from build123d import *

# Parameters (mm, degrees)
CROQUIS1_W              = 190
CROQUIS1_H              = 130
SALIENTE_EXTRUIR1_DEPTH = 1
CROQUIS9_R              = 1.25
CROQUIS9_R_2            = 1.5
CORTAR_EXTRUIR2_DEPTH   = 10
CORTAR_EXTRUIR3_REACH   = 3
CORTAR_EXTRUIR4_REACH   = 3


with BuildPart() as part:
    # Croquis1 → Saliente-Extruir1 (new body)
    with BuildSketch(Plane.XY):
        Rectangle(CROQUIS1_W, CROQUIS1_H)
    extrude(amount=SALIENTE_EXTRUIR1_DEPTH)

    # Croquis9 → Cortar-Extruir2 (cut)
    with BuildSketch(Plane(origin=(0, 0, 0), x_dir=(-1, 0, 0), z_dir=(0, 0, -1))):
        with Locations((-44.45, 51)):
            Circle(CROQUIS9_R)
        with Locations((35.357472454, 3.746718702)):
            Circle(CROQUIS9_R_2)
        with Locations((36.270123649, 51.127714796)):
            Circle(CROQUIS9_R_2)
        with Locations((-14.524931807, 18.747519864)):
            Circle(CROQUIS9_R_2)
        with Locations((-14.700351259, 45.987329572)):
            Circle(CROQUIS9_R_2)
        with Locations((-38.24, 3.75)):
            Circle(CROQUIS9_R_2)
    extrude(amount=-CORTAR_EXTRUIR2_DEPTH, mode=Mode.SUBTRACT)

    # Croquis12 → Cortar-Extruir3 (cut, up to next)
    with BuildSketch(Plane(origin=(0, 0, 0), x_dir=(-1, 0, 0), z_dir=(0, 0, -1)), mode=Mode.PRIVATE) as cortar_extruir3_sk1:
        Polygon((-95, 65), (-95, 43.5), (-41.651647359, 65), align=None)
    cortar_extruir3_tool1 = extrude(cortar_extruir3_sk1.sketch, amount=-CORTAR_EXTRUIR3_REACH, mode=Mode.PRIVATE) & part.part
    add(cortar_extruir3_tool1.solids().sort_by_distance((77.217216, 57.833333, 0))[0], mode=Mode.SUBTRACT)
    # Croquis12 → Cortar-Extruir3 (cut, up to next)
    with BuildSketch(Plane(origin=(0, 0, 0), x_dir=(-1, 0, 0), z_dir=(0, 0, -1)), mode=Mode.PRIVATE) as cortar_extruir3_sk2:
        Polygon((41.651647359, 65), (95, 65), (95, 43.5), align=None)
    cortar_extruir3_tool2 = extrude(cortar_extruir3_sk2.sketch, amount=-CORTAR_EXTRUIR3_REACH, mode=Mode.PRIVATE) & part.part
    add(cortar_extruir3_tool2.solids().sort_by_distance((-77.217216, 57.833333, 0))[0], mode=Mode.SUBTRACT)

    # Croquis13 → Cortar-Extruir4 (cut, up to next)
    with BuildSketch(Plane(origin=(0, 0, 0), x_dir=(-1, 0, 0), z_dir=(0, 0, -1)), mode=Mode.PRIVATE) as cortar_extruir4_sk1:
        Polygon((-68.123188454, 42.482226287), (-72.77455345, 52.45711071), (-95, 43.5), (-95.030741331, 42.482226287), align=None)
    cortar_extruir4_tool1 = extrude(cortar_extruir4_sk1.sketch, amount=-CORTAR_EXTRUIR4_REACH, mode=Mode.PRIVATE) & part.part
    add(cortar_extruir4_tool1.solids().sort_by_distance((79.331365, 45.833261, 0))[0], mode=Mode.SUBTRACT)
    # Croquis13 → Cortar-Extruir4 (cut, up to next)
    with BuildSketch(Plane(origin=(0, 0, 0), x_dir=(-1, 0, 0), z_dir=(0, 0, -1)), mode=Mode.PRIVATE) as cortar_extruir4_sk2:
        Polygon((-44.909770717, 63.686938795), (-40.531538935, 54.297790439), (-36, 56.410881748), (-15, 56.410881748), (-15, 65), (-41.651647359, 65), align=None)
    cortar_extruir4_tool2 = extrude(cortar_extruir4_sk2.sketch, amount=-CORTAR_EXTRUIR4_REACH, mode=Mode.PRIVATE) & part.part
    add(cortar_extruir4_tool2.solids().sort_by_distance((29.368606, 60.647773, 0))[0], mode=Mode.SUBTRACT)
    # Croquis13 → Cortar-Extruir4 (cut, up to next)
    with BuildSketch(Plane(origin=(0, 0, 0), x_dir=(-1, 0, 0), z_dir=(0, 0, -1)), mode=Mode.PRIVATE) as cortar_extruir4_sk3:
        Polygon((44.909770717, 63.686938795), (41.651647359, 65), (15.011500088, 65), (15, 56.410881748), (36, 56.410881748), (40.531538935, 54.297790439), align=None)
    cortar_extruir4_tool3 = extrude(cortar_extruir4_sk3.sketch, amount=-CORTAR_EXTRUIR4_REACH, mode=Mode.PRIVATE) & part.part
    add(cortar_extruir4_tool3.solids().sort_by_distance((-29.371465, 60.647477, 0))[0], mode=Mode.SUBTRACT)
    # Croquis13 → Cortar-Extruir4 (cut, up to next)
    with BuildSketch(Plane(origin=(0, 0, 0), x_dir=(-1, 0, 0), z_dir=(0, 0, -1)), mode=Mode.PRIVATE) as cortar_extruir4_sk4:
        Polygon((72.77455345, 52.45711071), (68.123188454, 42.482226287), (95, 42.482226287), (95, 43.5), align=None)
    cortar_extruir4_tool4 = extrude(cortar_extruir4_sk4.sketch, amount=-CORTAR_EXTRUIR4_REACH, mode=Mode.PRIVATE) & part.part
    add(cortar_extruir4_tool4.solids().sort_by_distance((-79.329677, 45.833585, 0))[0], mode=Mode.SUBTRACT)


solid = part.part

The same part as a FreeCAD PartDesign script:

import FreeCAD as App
import Part
import Sketcher
from FreeCAD import Vector
Q = App.Units.Quantity

doc = App.newDocument("Part")
body = doc.addObject("PartDesign::Body", "Body")

sketch1 = doc.addObject("Sketcher::SketchObject", "Sketch")
body.addObject(sketch1)
sketch1.AttachmentSupport = (doc.XY_Plane, [""])
sketch1.MapMode = "FlatFace"
sketch1.addGeometry(Part.LineSegment(Vector(-95, 65, 0), Vector(-95, -65, 0)), False)
sketch1.addGeometry(Part.LineSegment(Vector(-95, -65, 0), Vector(95, -65, 0)), False)
sketch1.addGeometry(Part.LineSegment(Vector(95, -65, 0), Vector(95, 65, 0)), False)
sketch1.addGeometry(Part.LineSegment(Vector(95, 65, 0), Vector(-95, 65, 0)), False)
sketch1.addConstraint(Sketcher.Constraint("Coincident", 0, 2, 1, 1))
sketch1.addConstraint(Sketcher.Constraint("Coincident", 1, 2, 2, 1))
sketch1.addConstraint(Sketcher.Constraint("Coincident", 2, 2, 3, 1))
sketch1.addConstraint(Sketcher.Constraint("Coincident", 3, 2, 0, 1))
sketch1.addConstraint(Sketcher.Constraint("Vertical", 0))
sketch1.addConstraint(Sketcher.Constraint("Horizontal", 1))
sketch1.addConstraint(Sketcher.Constraint("Vertical", 2))
sketch1.addConstraint(Sketcher.Constraint("Horizontal", 3))
sketch1.addConstraint(Sketcher.Constraint("Symmetric", 0, 2, 2, 2, -1, 1))
sketch1.addConstraint(Sketcher.Constraint("DistanceX", 1, 1, 1, 2, Q("190 mm")))
sketch1.addConstraint(Sketcher.Constraint("DistanceY", 0, 2, 0, 1, Q("130 mm")))
pad1 = doc.addObject("PartDesign::Pad", "Pad")
body.addObject(pad1)
pad1.Profile = sketch1
pad1.Length = 1

sketch2 = doc.addObject("Sketcher::SketchObject", "Sketch001")
body.addObject(sketch2)
sketch2.AttachmentSupport = (doc.XY_Plane, [""])
sketch2.MapMode = "FlatFace"
sketch2.addGeometry(Part.Circle(Vector(44.45, 51, 0), Vector(0, 0, 1), 1.25), False)
sketch2.addGeometry(Part.Circle(Vector(-35.357472, 3.746719, 0), Vector(0, 0, 1), 1.5), False)
sketch2.addGeometry(Part.Circle(Vector(-36.270124, 51.127715, 0), Vector(0, 0, 1), 1.5), False)
sketch2.addGeometry(Part.Circle(Vector(14.524932, 18.74752, 0), Vector(0, 0, 1), 1.5), False)
sketch2.addGeometry(Part.Circle(Vector(14.700351, 45.98733, 0), Vector(0, 0, 1), 1.5), False)
sketch2.addGeometry(Part.Circle(Vector(38.24, 3.75, 0), Vector(0, 0, 1), 1.5), False)
sketch2.addConstraint(Sketcher.Constraint("Equal", 1, 2))
sketch2.addConstraint(Sketcher.Constraint("Equal", 2, 3))
sketch2.addConstraint(Sketcher.Constraint("Equal", 3, 4))
sketch2.addConstraint(Sketcher.Constraint("Equal", 4, 5))
sketch2.addConstraint(Sketcher.Constraint("Diameter", 1, Q("3 mm")))
sketch2.addConstraint(Sketcher.Constraint("Diameter", 0, Q("2.5 mm")))
sketch2.addConstraint(Sketcher.Constraint("DistanceY", -1, 1, 0, 3, Q("51 mm")))
sketch2.addConstraint(Sketcher.Constraint("DistanceX", -1, 1, 0, 3, Q("44.45 mm")))
sketch2.addConstraint(Sketcher.Constraint("DistanceX", -1, 1, 5, 3, Q("38.24 mm")))
sketch2.addConstraint(Sketcher.Constraint("DistanceY", -1, 1, 5, 3, Q("3.75 mm")))
sketch2.addConstraint(Sketcher.Constraint("DistanceY", 1, 3, 3, 3, Q("15.000801 mm")))
sketch2.addConstraint(Sketcher.Constraint("DistanceY", -1, 1, 1, 3, Q("3.746719 mm")))
sketch2.addConstraint(Sketcher.Constraint("DistanceX", -1, 1, 3, 3, Q("14.524932 mm")))
sketch2.addConstraint(Sketcher.Constraint("DistanceX", -1, 1, 4, 3, Q("14.700351 mm")))
sketch2.addConstraint(Sketcher.Constraint("DistanceY", -1, 1, 4, 3, Q("45.98733 mm")))
sketch2.addConstraint(Sketcher.Constraint("DistanceX", 2, 3, 1, 3, Q("0.912651 mm")))
sketch2.addConstraint(Sketcher.Constraint("DistanceX", 1, 3, -1, 1, Q("35.357472 mm")))
sketch2.addConstraint(Sketcher.Constraint("DistanceY", -1, 1, 2, 3, Q("51.127715 mm")))
pocket1 = doc.addObject("PartDesign::Pocket", "Pocket")
body.addObject(pocket1)
pocket1.Profile = sketch2
pocket1.Length = 10
pocket1.Reversed = True

sketch3 = doc.addObject("Sketcher::SketchObject", "Sketch002")
body.addObject(sketch3)
sketch3.AttachmentSupport = (doc.XY_Plane, [""])
sketch3.MapMode = "FlatFace"
sketch3.addGeometry(Part.LineSegment(Vector(95, 65, 0), Vector(95, 43.5, 0)), False)
sketch3.addGeometry(Part.LineSegment(Vector(95, 43.5, 0), Vector(41.651647, 65, 0)), False)
sketch3.addGeometry(Part.LineSegment(Vector(41.651647, 65, 0), Vector(95, 65, 0)), False)
sketch3.addConstraint(Sketcher.Constraint("Coincident", 0, 2, 1, 1))
sketch3.addConstraint(Sketcher.Constraint("Coincident", 1, 2, 2, 1))
sketch3.addConstraint(Sketcher.Constraint("Coincident", 2, 2, 0, 1))
sketch3.addConstraint(Sketcher.Constraint("Vertical", 0))
sketch3.addConstraint(Sketcher.Constraint("Horizontal", 2))
sketch3.addConstraint(Sketcher.Constraint("DistanceY", 0, 2, 0, 1, Q("21.5 mm")))
sketch3.addConstraint(Sketcher.Constraint("DistanceX", -1, 1, 0, 2, Q("95 mm")))
sketch3.addConstraint(Sketcher.Constraint("DistanceY", -1, 1, 1, 2, Q("65 mm")))
sketch3.addConstraint(Sketcher.Constraint("Angle", 1, Q("158.049998 deg")))
pocket2 = doc.addObject("PartDesign::Pocket", "Pocket001")
body.addObject(pocket2)
pocket2.Profile = sketch3
pocket2.Type = "UpToFirst"
pocket2.Reversed = True

sketch4 = doc.addObject("Sketcher::SketchObject", "Sketch003")
body.addObject(sketch4)
sketch4.AttachmentSupport = (doc.XY_Plane, [""])
sketch4.MapMode = "FlatFace"
sketch4.addGeometry(Part.LineSegment(Vector(-95, 65, 0), Vector(-41.651647, 65, 0)), False)
sketch4.addGeometry(Part.LineSegment(Vector(-41.651647, 65, 0), Vector(-95, 43.5, 0)), False)
sketch4.addGeometry(Part.LineSegment(Vector(-95, 43.5, 0), Vector(-95, 65, 0)), False)
sketch4.addConstraint(Sketcher.Constraint("Coincident", 0, 2, 1, 1))
sketch4.addConstraint(Sketcher.Constraint("Coincident", 1, 2, 2, 1))
sketch4.addConstraint(Sketcher.Constraint("Coincident", 2, 2, 0, 1))
sketch4.addConstraint(Sketcher.Constraint("Horizontal", 0))
sketch4.addConstraint(Sketcher.Constraint("Vertical", 2))
sketch4.addConstraint(Sketcher.Constraint("DistanceY", 2, 1, 2, 2, Q("21.5 mm")))
sketch4.addConstraint(Sketcher.Constraint("DistanceY", -1, 1, 0, 2, Q("65 mm")))
sketch4.addConstraint(Sketcher.Constraint("DistanceX", 1, 2, -1, 1, Q("95 mm")))
sketch4.addConstraint(Sketcher.Constraint("Angle", 1, Q("-158.049998 deg")))
pocket3 = doc.addObject("PartDesign::Pocket", "Pocket002")
body.addObject(pocket3)
pocket3.Profile = sketch4
pocket3.Type = "UpToFirst"
pocket3.Reversed = True

sketch5 = doc.addObject("Sketcher::SketchObject", "Sketch004")
body.addObject(sketch5)
sketch5.AttachmentSupport = (doc.XY_Plane, [""])
sketch5.MapMode = "FlatFace"
sketch5.addGeometry(Part.LineSegment(Vector(68.123188, 42.482226, 0), Vector(72.774553, 52.457111, 0)), False)
sketch5.addGeometry(Part.LineSegment(Vector(72.774553, 52.457111, 0), Vector(95, 43.5, 0)), False)
sketch5.addGeometry(Part.LineSegment(Vector(95, 43.5, 0), Vector(95.030741, 42.482226, 0)), False)
sketch5.addGeometry(Part.LineSegment(Vector(95.030741, 42.482226, 0), Vector(68.123188, 42.482226, 0)), False)
sketch5.addConstraint(Sketcher.Constraint("Coincident", 0, 2, 1, 1))
sketch5.addConstraint(Sketcher.Constraint("Coincident", 1, 2, 2, 1))
sketch5.addConstraint(Sketcher.Constraint("Coincident", 2, 2, 3, 1))
sketch5.addConstraint(Sketcher.Constraint("Coincident", 3, 2, 0, 1))
sketch5.addConstraint(Sketcher.Constraint("Horizontal", 3))
sketch5.addConstraint(Sketcher.Constraint("Angle", 0, Q("65 deg")))
sketch5.addConstraint(Sketcher.Constraint("DistanceX", -1, 1, 1, 2, Q("95 mm")))
sketch5.addConstraint(Sketcher.Constraint("DistanceY", -1, 1, 1, 2, Q("43.5 mm")))
sketch5.addConstraint(Sketcher.Constraint("Angle", 1, Q("-21.950002 deg")))
sketch5.addConstraint(Sketcher.Constraint("DistanceX", 3, 2, 3, 1, Q("26.907553 mm")))
sketch5.addConstraint(Sketcher.Constraint("DistanceY", -1, 1, 0, 2, Q("52.457111 mm")))
sketch5.addConstraint(Sketcher.Constraint("DistanceX", -1, 1, 2, 2, Q("95.030741 mm")))
pocket4 = doc.addObject("PartDesign::Pocket", "Pocket003")
body.addObject(pocket4)
pocket4.Profile = sketch5
pocket4.Type = "UpToFirst"
pocket4.Reversed = True

sketch6 = doc.addObject("Sketcher::SketchObject", "Sketch005")
body.addObject(sketch6)
sketch6.AttachmentSupport = (doc.XY_Plane, [""])
sketch6.MapMode = "FlatFace"
sketch6.addGeometry(Part.LineSegment(Vector(44.909771, 63.686939, 0), Vector(40.531539, 54.29779, 0)), False)
sketch6.addGeometry(Part.LineSegment(Vector(40.531539, 54.29779, 0), Vector(36, 56.410882, 0)), False)
sketch6.addGeometry(Part.LineSegment(Vector(36, 56.410882, 0), Vector(15, 56.410882, 0)), False)
sketch6.addGeometry(Part.LineSegment(Vector(15, 56.410882, 0), Vector(15, 65, 0)), False)
sketch6.addGeometry(Part.LineSegment(Vector(15, 65, 0), Vector(41.651647, 65, 0)), False)
sketch6.addGeometry(Part.LineSegment(Vector(41.651647, 65, 0), Vector(44.909771, 63.686939, 0)), False)
sketch6.addConstraint(Sketcher.Constraint("Coincident", 0, 2, 1, 1))
sketch6.addConstraint(Sketcher.Constraint("Coincident", 1, 2, 2, 1))
sketch6.addConstraint(Sketcher.Constraint("Coincident", 2, 2, 3, 1))
sketch6.addConstraint(Sketcher.Constraint("Coincident", 3, 2, 4, 1))
sketch6.addConstraint(Sketcher.Constraint("Coincident", 4, 2, 5, 1))
sketch6.addConstraint(Sketcher.Constraint("Coincident", 5, 2, 0, 1))
sketch6.addConstraint(Sketcher.Constraint("Horizontal", 2))
sketch6.addConstraint(Sketcher.Constraint("Vertical", 3))
sketch6.addConstraint(Sketcher.Constraint("Horizontal", 4))
sketch6.addConstraint(Sketcher.Constraint("Perpendicular", 0, 1))
sketch6.addConstraint(Sketcher.Constraint("DistanceX", 2, 2, 2, 1, Q("21 mm")))
sketch6.addConstraint(Sketcher.Constraint("Angle", 0, Q("-115 deg")))
sketch6.addConstraint(Sketcher.Constraint("Distance", 1, Q("5 mm")))
sketch6.addConstraint(Sketcher.Constraint("DistanceX", -1, 1, 1, 2, Q("36 mm")))
sketch6.addConstraint(Sketcher.Constraint("DistanceY", -1, 1, 3, 2, Q("65 mm")))
sketch6.addConstraint(Sketcher.Constraint("Angle", 5, Q("-21.950002 deg")))
sketch6.addConstraint(Sketcher.Constraint("DistanceY", 3, 1, 3, 2, Q("8.589118 mm")))
sketch6.addConstraint(Sketcher.Constraint("Distance", 0, Q("10.359779 mm")))
pocket5 = doc.addObject("PartDesign::Pocket", "Pocket004")
body.addObject(pocket5)
pocket5.Profile = sketch6
pocket5.Type = "UpToFirst"
pocket5.Reversed = True

sketch7 = doc.addObject("Sketcher::SketchObject", "Sketch006")
body.addObject(sketch7)
sketch7.AttachmentSupport = (doc.XY_Plane, [""])
sketch7.MapMode = "FlatFace"
sketch7.addGeometry(Part.LineSegment(Vector(-44.909771, 63.686939, 0), Vector(-41.651647, 65, 0)), False)
sketch7.addGeometry(Part.LineSegment(Vector(-41.651647, 65, 0), Vector(-15.0115, 65, 0)), False)
sketch7.addGeometry(Part.LineSegment(Vector(-15.0115, 65, 0), Vector(-15, 56.410882, 0)), False)
sketch7.addGeometry(Part.LineSegment(Vector(-15, 56.410882, 0), Vector(-36, 56.410882, 0)), False)
sketch7.addGeometry(Part.LineSegment(Vector(-36, 56.410882, 0), Vector(-40.531539, 54.29779, 0)), False)
sketch7.addGeometry(Part.LineSegment(Vector(-40.531539, 54.29779, 0), Vector(-44.909771, 63.686939, 0)), False)
sketch7.addConstraint(Sketcher.Constraint("Coincident", 0, 2, 1, 1))
sketch7.addConstraint(Sketcher.Constraint("Coincident", 1, 2, 2, 1))
sketch7.addConstraint(Sketcher.Constraint("Coincident", 2, 2, 3, 1))
sketch7.addConstraint(Sketcher.Constraint("Coincident", 3, 2, 4, 1))
sketch7.addConstraint(Sketcher.Constraint("Coincident", 4, 2, 5, 1))
sketch7.addConstraint(Sketcher.Constraint("Coincident", 5, 2, 0, 1))
sketch7.addConstraint(Sketcher.Constraint("Horizontal", 1))
sketch7.addConstraint(Sketcher.Constraint("Horizontal", 3))
sketch7.addConstraint(Sketcher.Constraint("Perpendicular", 4, 5))
sketch7.addConstraint(Sketcher.Constraint("DistanceX", 3, 2, 3, 1, Q("21 mm")))
sketch7.addConstraint(Sketcher.Constraint("Angle", 4, Q("-155 deg")))
sketch7.addConstraint(Sketcher.Constraint("Distance", 4, Q("5 mm")))
sketch7.addConstraint(Sketcher.Constraint("DistanceY", -1, 1, 0, 2, Q("65 mm")))
sketch7.addConstraint(Sketcher.Constraint("DistanceX", 2, 2, -1, 1, Q("15 mm")))
sketch7.addConstraint(Sketcher.Constraint("Angle", 0, Q("21.950002 deg")))
sketch7.addConstraint(Sketcher.Constraint("DistanceX", 1, 2, -1, 1, Q("15.0115 mm")))
sketch7.addConstraint(Sketcher.Constraint("Distance", 5, Q("10.359779 mm")))
sketch7.addConstraint(Sketcher.Constraint("DistanceX", 1, 1, 1, 2, Q("26.640147 mm")))
pocket6 = doc.addObject("PartDesign::Pocket", "Pocket005")
body.addObject(pocket6)
pocket6.Profile = sketch7
pocket6.Type = "UpToFirst"
pocket6.Reversed = True

sketch8 = doc.addObject("Sketcher::SketchObject", "Sketch007")
body.addObject(sketch8)
sketch8.AttachmentSupport = (doc.XY_Plane, [""])
sketch8.MapMode = "FlatFace"
sketch8.addGeometry(Part.LineSegment(Vector(-72.774553, 52.457111, 0), Vector(-68.123188, 42.482226, 0)), False)
sketch8.addGeometry(Part.LineSegment(Vector(-68.123188, 42.482226, 0), Vector(-95, 42.482226, 0)), False)
sketch8.addGeometry(Part.LineSegment(Vector(-95, 42.482226, 0), Vector(-95, 43.5, 0)), False)
sketch8.addGeometry(Part.LineSegment(Vector(-95, 43.5, 0), Vector(-72.774553, 52.457111, 0)), False)
sketch8.addConstraint(Sketcher.Constraint("Coincident", 0, 2, 1, 1))
sketch8.addConstraint(Sketcher.Constraint("Coincident", 1, 2, 2, 1))
sketch8.addConstraint(Sketcher.Constraint("Coincident", 2, 2, 3, 1))
sketch8.addConstraint(Sketcher.Constraint("Coincident", 3, 2, 0, 1))
sketch8.addConstraint(Sketcher.Constraint("Horizontal", 1))
sketch8.addConstraint(Sketcher.Constraint("Vertical", 2))
sketch8.addConstraint(Sketcher.Constraint("Angle", 0, Q("-65 deg")))
sketch8.addConstraint(Sketcher.Constraint("DistanceX", 1, 2, -1, 1, Q("95 mm")))
sketch8.addConstraint(Sketcher.Constraint("DistanceY", -1, 1, 2, 2, Q("43.5 mm")))
sketch8.addConstraint(Sketcher.Constraint("Angle", 3, Q("21.950002 deg")))
sketch8.addConstraint(Sketcher.Constraint("DistanceX", 1, 2, 1, 1, Q("26.876812 mm")))
sketch8.addConstraint(Sketcher.Constraint("DistanceY", 2, 1, 2, 2, Q("1.017774 mm")))
pocket7 = doc.addObject("PartDesign::Pocket", "Pocket006")
body.addObject(pocket7)
pocket7.Profile = sketch8
pocket7.Type = "UpToFirst"
pocket7.Reversed = True

doc.recompute()
